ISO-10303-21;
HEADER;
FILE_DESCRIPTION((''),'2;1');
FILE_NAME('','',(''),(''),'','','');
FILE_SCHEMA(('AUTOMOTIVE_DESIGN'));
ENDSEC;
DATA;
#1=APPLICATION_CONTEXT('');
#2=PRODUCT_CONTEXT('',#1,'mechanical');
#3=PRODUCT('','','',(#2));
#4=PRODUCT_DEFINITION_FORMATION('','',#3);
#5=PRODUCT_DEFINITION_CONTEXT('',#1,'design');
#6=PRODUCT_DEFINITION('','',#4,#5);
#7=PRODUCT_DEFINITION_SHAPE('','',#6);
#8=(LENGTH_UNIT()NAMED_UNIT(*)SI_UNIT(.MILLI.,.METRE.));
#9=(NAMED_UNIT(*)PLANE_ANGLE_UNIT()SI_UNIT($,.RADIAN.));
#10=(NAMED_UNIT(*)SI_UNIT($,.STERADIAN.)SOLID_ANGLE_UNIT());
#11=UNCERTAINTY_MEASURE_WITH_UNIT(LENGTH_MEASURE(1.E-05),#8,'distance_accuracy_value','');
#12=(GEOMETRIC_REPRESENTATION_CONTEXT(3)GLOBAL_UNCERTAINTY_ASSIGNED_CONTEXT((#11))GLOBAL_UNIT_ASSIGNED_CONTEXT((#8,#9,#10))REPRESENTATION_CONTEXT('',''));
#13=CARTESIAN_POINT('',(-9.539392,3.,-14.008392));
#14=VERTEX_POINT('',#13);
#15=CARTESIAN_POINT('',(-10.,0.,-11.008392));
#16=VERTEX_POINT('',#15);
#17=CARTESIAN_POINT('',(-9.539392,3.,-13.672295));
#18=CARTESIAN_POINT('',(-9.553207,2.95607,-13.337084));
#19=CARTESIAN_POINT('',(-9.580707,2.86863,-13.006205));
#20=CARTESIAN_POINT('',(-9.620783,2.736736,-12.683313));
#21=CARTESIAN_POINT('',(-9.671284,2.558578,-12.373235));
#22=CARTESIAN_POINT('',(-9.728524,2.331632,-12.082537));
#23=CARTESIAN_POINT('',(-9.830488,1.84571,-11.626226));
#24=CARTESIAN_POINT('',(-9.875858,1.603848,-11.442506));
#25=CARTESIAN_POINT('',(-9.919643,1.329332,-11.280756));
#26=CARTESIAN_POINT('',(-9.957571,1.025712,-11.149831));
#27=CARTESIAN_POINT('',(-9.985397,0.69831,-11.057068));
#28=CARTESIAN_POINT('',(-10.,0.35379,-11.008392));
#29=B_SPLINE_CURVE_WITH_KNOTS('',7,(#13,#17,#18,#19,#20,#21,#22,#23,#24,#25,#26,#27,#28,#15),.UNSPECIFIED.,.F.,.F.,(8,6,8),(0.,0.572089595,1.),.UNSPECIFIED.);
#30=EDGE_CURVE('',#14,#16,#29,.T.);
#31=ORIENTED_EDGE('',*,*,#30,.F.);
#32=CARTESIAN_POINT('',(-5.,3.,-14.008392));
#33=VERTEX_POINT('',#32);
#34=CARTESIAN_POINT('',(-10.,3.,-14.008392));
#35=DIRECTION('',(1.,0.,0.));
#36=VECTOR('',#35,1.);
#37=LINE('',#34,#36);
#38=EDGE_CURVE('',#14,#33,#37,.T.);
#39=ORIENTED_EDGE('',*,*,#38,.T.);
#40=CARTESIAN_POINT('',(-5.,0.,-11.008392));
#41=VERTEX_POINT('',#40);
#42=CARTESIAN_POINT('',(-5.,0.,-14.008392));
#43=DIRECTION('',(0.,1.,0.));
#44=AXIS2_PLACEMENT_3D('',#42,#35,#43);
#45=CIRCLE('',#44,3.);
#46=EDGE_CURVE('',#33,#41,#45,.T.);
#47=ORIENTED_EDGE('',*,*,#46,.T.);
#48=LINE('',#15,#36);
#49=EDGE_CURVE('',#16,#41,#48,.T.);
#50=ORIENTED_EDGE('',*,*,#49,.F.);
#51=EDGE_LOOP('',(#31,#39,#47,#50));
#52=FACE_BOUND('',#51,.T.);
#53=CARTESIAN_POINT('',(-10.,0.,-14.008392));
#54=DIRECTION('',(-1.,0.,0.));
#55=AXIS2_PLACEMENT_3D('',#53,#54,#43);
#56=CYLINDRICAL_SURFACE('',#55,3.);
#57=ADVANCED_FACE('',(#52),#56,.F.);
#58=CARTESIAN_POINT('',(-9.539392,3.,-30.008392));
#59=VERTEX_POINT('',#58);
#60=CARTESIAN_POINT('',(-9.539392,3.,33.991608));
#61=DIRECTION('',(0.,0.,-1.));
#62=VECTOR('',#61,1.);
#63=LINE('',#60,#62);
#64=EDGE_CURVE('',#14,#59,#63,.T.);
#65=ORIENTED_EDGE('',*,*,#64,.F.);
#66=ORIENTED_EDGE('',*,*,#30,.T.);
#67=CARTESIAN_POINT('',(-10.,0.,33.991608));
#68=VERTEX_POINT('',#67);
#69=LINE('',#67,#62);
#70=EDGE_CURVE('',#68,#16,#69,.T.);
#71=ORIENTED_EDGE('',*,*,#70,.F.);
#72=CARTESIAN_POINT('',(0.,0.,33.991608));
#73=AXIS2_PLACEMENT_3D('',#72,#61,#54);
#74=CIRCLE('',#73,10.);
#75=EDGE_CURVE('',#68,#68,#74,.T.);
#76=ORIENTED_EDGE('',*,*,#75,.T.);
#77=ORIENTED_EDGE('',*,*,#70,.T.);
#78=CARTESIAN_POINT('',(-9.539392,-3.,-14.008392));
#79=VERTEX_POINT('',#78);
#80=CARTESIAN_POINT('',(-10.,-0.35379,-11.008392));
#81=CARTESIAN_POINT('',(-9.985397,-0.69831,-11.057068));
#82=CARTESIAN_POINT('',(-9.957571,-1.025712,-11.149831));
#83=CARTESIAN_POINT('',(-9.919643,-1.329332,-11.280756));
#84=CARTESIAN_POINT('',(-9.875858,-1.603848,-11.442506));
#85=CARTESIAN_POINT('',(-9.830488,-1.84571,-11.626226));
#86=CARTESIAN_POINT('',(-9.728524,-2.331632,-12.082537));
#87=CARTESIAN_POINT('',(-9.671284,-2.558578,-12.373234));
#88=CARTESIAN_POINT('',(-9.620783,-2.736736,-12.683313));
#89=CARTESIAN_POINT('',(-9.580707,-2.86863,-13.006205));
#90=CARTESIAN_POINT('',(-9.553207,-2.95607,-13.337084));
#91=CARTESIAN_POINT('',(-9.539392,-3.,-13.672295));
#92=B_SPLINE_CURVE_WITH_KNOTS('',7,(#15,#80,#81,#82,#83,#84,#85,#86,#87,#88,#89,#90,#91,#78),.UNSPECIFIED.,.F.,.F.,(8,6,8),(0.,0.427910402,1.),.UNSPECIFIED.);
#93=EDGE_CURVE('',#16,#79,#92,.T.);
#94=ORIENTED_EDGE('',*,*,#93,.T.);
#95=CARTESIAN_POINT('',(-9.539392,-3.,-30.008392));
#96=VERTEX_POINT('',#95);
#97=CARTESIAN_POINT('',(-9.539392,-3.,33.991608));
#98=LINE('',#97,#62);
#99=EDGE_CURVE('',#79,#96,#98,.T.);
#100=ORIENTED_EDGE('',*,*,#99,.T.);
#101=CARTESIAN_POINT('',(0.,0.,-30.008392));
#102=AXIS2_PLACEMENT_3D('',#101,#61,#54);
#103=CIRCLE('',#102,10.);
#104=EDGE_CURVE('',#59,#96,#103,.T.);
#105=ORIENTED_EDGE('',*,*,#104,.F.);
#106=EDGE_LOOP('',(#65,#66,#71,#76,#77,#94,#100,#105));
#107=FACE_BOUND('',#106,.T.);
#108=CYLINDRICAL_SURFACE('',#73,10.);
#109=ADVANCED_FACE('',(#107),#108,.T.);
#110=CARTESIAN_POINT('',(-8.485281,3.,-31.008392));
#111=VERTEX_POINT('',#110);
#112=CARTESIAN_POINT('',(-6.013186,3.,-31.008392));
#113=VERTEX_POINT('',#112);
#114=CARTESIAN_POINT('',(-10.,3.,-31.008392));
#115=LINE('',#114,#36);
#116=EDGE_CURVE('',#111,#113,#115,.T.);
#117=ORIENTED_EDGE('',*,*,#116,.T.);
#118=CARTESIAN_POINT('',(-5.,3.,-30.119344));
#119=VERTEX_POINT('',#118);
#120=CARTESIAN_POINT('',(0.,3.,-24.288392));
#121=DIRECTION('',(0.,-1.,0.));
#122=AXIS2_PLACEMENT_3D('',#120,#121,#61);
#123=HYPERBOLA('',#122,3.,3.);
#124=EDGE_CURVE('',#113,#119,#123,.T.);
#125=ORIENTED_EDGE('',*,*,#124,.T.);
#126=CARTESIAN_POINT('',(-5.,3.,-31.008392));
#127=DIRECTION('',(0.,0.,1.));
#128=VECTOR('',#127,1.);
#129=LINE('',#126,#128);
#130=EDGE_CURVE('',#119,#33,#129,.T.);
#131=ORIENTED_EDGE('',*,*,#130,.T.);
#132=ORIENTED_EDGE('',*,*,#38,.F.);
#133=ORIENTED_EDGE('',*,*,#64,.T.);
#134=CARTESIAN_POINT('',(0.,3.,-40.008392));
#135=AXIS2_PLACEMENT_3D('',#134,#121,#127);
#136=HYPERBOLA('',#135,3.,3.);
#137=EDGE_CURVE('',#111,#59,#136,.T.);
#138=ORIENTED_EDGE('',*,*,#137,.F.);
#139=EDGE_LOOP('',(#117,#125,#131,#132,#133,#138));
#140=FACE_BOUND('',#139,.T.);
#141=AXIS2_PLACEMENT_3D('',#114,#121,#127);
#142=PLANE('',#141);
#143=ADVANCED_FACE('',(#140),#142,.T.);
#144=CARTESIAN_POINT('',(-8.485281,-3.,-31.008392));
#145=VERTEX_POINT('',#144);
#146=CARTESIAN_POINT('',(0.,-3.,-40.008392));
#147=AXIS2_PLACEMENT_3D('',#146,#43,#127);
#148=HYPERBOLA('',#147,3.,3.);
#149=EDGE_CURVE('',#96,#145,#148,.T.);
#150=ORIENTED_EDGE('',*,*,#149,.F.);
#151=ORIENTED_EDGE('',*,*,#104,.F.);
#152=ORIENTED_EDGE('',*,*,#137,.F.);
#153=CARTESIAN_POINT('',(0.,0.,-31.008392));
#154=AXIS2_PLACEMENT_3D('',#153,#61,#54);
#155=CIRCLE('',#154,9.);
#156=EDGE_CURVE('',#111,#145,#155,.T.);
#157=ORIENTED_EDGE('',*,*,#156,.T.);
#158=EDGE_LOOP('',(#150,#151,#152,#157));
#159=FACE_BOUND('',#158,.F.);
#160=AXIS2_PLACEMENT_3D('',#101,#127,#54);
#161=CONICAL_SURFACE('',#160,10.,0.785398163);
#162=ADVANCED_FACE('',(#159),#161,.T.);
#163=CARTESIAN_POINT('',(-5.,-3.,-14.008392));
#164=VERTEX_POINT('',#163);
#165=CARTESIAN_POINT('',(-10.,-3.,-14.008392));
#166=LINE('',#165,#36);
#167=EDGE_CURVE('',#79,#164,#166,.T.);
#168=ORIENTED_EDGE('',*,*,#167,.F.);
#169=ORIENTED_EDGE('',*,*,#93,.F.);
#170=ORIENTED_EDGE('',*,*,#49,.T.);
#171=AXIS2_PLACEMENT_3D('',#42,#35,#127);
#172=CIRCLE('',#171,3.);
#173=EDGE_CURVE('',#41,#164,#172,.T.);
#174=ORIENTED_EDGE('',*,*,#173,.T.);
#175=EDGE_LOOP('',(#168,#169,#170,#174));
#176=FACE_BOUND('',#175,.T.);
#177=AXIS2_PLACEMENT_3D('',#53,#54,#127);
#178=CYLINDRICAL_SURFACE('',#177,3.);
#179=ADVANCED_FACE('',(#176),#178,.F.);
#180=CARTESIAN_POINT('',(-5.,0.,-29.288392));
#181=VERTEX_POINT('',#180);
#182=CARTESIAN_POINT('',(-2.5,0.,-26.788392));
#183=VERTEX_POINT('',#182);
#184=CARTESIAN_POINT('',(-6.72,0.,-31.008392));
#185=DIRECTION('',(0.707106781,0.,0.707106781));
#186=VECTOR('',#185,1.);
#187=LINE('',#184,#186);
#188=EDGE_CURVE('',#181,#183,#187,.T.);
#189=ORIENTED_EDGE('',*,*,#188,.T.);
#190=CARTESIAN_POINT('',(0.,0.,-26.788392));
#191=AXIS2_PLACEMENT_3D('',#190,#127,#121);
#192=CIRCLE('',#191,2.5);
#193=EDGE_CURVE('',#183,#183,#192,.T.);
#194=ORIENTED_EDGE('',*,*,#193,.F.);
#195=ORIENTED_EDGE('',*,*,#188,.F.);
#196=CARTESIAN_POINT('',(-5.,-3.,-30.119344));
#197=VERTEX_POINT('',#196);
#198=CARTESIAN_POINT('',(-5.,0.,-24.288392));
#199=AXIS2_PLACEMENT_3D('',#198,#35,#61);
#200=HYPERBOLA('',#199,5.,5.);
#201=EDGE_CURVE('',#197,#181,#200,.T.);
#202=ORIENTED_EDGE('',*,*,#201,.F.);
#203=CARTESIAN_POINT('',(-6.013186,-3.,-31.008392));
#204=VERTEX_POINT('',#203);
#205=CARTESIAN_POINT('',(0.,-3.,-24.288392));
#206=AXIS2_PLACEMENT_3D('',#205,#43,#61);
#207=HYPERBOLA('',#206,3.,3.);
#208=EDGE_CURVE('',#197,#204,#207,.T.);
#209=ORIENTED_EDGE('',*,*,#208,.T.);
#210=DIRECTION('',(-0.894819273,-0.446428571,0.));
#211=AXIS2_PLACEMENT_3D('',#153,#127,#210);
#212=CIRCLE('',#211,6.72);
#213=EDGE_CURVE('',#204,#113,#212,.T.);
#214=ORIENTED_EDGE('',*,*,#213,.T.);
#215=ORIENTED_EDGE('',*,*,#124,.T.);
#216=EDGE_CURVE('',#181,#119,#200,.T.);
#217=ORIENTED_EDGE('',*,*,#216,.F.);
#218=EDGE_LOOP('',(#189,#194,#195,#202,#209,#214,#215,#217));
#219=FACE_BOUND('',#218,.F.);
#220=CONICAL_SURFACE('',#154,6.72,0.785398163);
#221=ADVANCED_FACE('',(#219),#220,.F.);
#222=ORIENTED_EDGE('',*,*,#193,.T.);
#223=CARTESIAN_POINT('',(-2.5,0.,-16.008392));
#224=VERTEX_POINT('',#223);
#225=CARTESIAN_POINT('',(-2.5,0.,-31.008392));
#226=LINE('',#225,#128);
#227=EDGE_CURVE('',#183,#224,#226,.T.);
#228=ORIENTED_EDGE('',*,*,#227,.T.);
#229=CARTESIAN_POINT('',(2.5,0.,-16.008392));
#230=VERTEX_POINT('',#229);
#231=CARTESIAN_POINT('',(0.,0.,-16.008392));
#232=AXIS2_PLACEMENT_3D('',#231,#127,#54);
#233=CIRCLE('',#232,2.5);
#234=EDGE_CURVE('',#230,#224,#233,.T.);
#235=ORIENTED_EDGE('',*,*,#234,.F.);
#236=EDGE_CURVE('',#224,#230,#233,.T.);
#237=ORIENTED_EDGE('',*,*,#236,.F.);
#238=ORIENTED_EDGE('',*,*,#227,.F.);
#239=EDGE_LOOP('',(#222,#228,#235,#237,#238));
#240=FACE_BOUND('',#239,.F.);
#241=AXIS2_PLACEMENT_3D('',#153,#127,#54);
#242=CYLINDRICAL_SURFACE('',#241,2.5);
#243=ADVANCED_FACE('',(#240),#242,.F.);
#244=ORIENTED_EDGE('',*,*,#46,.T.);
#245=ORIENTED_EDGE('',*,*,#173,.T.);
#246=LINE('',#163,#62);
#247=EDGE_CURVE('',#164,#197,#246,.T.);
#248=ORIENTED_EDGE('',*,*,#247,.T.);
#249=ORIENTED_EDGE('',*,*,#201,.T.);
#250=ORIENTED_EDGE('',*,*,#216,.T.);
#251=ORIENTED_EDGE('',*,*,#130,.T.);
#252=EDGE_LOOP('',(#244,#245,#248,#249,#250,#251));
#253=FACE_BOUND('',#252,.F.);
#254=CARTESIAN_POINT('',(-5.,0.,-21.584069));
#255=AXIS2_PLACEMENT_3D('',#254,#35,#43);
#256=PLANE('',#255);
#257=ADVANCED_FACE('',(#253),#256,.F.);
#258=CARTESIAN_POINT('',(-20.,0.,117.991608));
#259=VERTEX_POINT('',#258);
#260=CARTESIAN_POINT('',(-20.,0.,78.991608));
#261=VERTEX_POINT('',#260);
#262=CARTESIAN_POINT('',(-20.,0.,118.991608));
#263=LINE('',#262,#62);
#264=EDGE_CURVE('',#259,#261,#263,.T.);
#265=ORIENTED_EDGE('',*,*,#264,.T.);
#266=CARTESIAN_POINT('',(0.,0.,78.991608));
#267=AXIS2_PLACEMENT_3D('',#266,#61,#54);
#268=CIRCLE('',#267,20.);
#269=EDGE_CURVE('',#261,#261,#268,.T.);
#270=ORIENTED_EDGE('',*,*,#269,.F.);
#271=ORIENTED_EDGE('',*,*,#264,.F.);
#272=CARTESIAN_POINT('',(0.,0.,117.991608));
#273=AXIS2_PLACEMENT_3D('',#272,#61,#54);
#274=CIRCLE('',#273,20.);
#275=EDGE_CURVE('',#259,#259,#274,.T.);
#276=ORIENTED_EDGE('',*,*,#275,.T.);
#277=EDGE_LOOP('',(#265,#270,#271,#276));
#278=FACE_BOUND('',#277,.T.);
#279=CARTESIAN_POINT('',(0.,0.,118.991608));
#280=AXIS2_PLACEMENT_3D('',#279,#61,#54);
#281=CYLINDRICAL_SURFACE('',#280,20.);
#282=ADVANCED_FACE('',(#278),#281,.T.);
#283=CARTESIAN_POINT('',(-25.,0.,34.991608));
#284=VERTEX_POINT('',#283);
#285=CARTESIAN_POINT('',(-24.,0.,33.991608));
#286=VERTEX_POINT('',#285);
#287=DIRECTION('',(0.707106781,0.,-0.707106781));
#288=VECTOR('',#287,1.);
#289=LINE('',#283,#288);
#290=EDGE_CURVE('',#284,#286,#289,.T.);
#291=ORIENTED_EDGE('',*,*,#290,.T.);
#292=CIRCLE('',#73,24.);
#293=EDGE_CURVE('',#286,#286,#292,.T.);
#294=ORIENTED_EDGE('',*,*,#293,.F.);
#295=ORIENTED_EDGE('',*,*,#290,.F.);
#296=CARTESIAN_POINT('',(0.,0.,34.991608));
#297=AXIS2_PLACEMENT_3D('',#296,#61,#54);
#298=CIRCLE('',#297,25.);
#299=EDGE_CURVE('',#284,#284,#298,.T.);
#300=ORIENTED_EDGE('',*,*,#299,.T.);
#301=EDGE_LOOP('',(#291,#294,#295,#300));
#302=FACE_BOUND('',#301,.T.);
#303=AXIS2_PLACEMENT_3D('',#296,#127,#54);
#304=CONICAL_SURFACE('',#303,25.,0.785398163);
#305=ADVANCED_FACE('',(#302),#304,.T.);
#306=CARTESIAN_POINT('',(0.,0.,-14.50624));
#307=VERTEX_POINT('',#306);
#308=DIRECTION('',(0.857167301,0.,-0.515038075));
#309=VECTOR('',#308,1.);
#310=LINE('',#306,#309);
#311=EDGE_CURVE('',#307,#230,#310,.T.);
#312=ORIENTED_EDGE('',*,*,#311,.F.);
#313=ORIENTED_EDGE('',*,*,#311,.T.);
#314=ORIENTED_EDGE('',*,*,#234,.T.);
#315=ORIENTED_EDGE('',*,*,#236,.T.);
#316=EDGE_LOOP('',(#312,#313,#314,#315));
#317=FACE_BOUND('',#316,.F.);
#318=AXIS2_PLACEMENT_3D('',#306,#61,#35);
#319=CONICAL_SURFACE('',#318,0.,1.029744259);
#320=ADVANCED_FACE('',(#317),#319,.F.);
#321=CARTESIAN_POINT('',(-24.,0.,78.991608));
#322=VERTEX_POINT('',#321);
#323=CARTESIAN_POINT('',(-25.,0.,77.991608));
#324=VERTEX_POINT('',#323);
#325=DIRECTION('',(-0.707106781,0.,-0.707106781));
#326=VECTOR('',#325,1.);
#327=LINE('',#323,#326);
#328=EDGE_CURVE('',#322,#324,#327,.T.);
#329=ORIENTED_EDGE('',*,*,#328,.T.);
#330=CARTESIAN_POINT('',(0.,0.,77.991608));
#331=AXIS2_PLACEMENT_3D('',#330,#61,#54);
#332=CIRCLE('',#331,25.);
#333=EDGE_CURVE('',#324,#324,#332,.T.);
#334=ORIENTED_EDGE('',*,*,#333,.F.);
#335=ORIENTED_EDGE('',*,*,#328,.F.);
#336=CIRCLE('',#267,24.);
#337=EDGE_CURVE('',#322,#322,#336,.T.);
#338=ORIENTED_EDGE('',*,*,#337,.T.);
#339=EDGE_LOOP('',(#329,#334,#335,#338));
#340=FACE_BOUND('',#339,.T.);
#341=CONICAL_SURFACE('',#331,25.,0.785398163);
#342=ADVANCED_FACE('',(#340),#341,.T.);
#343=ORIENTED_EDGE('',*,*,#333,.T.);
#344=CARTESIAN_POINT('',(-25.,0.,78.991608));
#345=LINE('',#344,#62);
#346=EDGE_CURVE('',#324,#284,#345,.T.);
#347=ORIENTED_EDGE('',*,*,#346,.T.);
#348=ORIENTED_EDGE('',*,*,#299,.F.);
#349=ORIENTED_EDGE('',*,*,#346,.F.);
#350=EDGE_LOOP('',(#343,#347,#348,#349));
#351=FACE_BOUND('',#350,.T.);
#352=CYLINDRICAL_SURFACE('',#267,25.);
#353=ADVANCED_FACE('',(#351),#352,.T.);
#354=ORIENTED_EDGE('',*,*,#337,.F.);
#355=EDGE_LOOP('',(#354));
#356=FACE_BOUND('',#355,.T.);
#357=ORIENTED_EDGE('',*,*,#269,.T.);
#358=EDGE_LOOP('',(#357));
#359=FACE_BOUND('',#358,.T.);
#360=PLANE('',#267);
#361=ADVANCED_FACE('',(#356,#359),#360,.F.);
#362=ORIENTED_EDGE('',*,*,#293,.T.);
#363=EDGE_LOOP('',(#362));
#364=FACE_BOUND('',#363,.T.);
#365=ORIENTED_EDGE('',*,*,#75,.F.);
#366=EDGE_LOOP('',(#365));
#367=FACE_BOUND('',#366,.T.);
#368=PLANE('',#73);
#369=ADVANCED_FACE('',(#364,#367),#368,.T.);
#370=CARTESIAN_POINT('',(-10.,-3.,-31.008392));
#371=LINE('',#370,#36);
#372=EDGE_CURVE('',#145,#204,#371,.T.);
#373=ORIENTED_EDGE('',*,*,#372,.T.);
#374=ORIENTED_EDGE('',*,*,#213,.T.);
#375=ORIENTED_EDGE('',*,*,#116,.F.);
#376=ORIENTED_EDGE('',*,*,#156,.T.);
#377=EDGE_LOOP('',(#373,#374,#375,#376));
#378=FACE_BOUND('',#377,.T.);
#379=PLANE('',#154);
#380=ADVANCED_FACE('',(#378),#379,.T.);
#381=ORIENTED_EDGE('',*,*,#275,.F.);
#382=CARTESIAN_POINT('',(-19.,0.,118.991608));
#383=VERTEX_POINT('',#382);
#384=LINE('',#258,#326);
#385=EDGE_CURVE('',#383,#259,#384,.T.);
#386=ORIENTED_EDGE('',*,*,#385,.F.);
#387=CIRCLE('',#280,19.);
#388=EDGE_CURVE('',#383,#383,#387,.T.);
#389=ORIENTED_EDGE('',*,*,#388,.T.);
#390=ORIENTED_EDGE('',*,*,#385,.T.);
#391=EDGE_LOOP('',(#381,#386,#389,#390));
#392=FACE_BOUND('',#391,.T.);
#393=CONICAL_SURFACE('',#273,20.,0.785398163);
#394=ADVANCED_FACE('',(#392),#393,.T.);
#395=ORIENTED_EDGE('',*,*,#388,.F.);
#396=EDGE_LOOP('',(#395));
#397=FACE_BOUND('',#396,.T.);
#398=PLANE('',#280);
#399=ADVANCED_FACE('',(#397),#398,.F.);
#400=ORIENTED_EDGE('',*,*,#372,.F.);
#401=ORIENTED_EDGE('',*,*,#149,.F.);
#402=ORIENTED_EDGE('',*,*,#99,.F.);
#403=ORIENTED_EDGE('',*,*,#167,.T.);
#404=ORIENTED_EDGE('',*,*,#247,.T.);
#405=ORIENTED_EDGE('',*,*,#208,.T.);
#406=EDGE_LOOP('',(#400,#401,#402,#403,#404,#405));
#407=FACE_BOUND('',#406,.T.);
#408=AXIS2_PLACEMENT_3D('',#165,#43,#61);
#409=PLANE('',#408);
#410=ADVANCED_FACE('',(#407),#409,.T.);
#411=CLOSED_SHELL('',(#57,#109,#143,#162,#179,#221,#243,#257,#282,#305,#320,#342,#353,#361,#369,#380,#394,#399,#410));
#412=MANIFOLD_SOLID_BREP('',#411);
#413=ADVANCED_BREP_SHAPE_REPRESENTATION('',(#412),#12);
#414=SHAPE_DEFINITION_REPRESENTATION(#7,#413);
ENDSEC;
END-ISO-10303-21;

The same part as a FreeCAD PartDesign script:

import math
import FreeCAD as App
import Part
import Sketcher
from FreeCAD import Vector


def edges_at(feature, points):
    """Names of the edges that pass closest to the given points."""
    edges = feature.Shape.Edges
    near = lambda p: min(range(len(edges)), key=lambda i: edges[i].distToShape(Part.Vertex(*p))[0])
    return sorted({f"Edge{near(p) + 1}" for p in points})


def add_polygon(sketch, points):
    """Adds a closed chain of lines whose ends are joined by coincident constraints."""
    first, n = sketch.GeometryCount, len(points)
    for a, b in zip(points, points[1:] + points[:1]):
        sketch.addGeometry(Part.LineSegment(App.Vector(*a, 0), App.Vector(*b, 0)), False)
    for i in range(n):
        sketch.addConstraint(Sketcher.Constraint("Coincident", first + i, 2, first + (i + 1) % n, 1))

doc = App.newDocument("Part")
body = doc.addObject("PartDesign::Body", "Body")

sketch1 = body.newObject("Sketcher::SketchObject", "Sketch")
sketch1.AttachmentSupport = (doc.getObject("XZ_Plane"), [""])
sketch1.MapMode = "FlatFace"
add_polygon(sketch1, [(-10, -31.008392), (0, -31.008392), (0, 118.991608), (-20, 118.991608), (-20, 78.991608), (-25, 78.991608), (-25, 33.991608), (-10, 33.991608)])
sketch1.addConstraint(Sketcher.Constraint("Horizontal", 0))
sketch1.addConstraint(Sketcher.Constraint("Vertical", 1))
sketch1.addConstraint(Sketcher.Constraint("Horizontal", 2))
sketch1.addConstraint(Sketcher.Constraint("Vertical", 3))
sketch1.addConstraint(Sketcher.Constraint("Horizontal", 4))
sketch1.addConstraint(Sketcher.Constraint("Vertical", 5))
sketch1.addConstraint(Sketcher.Constraint("Horizontal", 6))
sketch1.addConstraint(Sketcher.Constraint("Vertical", 7))
sketch1.addConstraint(Sketcher.Constraint("PointOnObject", 0, 2, -2))
sketch1.addConstraint(Sketcher.Constraint("DistanceX", 0, 1, 0, 2, 10.0))
sketch1.addConstraint(Sketcher.Constraint("DistanceX", 2, 2, 2, 1, 20.0))
sketch1.addConstraint(Sketcher.Constraint("DistanceX", 4, 2, 4, 1, 5.0))
sketch1.addConstraint(Sketcher.Constraint("DistanceY", 1, 1, 1, 2, 150.0))
sketch1.addConstraint(Sketcher.Constraint("DistanceY", 3, 2, 3, 1, 40.0))
sketch1.addConstraint(Sketcher.Constraint("DistanceY", 5, 2, 5, 1, 45.0))
sketch1.addConstraint(Sketcher.Constraint("DistanceY", 0, 2, -1, 1, 31.008392))
revolution = body.newObject("PartDesign::Revolution", "Revolution")
revolution.Profile = sketch1
revolution.ReferenceAxis = (sketch1, ["V_Axis"])
revolution.Angle = 360
doc.recompute()

chamfer = body.newObject("PartDesign::Chamfer", "Chamfer")
chamfer.Base = (revolution, edges_at(revolution, [
    (10, 0, -31.008),
    (25, 0, 33.992),
    (25, 0, 78.992),
    (20, 0, 118.992),
]))
chamfer.Size = 1

sketch2 = body.newObject("Sketcher::SketchObject", "Sketch001")
sketch2.AttachmentSupport = (doc.getObject("YZ_Plane"), [""])
sketch2.MapMode = "FlatFace"
sketch2.AttachmentOffset = App.Placement(Vector(0, 0, -10), App.Rotation())
sketch2.addGeometry(Part.LineSegment(Vector(-3, -31.008392, 0), Vector(3, -31.008392, 0)), False)
sketch2.addGeometry(Part.LineSegment(Vector(3, -31.008392, 0), Vector(3, -14.008392, 0)), False)
sketch2.addGeometry(Part.ArcOfCircle(Part.Circle(Vector(0, -14.008392, 0), Vector(0, 0, 1), 3), math.radians(0), math.radians(90)), False)
sketch2.addGeometry(Part.ArcOfCircle(Part.Circle(Vector(0, -14.008392, 0), Vector(0, 0, 1), 3), math.radians(90), math.radians(180)), False)
sketch2.addGeometry(Part.LineSegment(Vector(-3, -14.008392, 0), Vector(-3, -31.008392, 0)), False)
sketch2.addConstraint(Sketcher.Constraint("Coincident", 0, 2, 1, 1))
sketch2.addConstraint(Sketcher.Constraint("Tangent", 1, 2, 2, 1))
sketch2.addConstraint(Sketcher.Constraint("Tangent", 2, 2, 3, 1))
sketch2.addConstraint(Sketcher.Constraint("Tangent", 3, 2, 4, 1))
sketch2.addConstraint(Sketcher.Constraint("Coincident", 4, 2, 0, 1))
sketch2.addConstraint(Sketcher.Constraint("Horizontal", 0))
sketch2.addConstraint(Sketcher.Constraint("Vertical", 1))
sketch2.addConstraint(Sketcher.Constraint("Vertical", 4))
sketch2.addConstraint(Sketcher.Constraint("Equal", 2, 3))
sketch2.addConstraint(Sketcher.Constraint("PointOnObject", 2, 3, -2))
sketch2.addConstraint(Sketcher.Constraint("PointOnObject", 2, 2, -2))
sketch2.addConstraint(Sketcher.Constraint("Radius", 2, 3.0))
sketch2.addConstraint(Sketcher.Constraint("DistanceY", 1, 1, 1, 2, 17.0))
sketch2.addConstraint(Sketcher.Constraint("DistanceY", 2, 3, -1, 1, 14.008392))
pocket1 = body.newObject("PartDesign::Pocket", "Pocket")
pocket1.Profile = sketch2
pocket1.Length = 5
pocket1.Reversed = True

sketch3 = body.newObject("Sketcher::SketchObject", "Sketch002")
sketch3.AttachmentSupport = (doc.getObject("XY_Plane"), [""])
sketch3.MapMode = "FlatFace"
sketch3.AttachmentOffset = App.Placement(Vector(0, 0, -31.008392), App.Rotation())
sketch3.addGeometry(Part.Circle(Vector(0, 0, 0), Vector(0, 0, 1), 2.5), False)
sketch3.addConstraint(Sketcher.Constraint("Coincident", 0, 3, -1, 1))
sketch3.addConstraint(Sketcher.Constraint("Diameter", 0, 5.0))
doc.recompute()
hole = body.newObject("PartDesign::Hole", "Hole")
hole.Profile = sketch3
hole.ThreadType = "None"
hole.Diameter = 5
hole.DepthType = "Dimension"
hole.Depth = 15
hole.DrillPoint = "Angled"
hole.DrillPointAngle = 118
hole.HoleCutType = "Countersink"
hole.HoleCutDiameter = 13.44
hole.HoleCutCountersinkAngle = 90
hole.Reversed = True

doc.recompute()
